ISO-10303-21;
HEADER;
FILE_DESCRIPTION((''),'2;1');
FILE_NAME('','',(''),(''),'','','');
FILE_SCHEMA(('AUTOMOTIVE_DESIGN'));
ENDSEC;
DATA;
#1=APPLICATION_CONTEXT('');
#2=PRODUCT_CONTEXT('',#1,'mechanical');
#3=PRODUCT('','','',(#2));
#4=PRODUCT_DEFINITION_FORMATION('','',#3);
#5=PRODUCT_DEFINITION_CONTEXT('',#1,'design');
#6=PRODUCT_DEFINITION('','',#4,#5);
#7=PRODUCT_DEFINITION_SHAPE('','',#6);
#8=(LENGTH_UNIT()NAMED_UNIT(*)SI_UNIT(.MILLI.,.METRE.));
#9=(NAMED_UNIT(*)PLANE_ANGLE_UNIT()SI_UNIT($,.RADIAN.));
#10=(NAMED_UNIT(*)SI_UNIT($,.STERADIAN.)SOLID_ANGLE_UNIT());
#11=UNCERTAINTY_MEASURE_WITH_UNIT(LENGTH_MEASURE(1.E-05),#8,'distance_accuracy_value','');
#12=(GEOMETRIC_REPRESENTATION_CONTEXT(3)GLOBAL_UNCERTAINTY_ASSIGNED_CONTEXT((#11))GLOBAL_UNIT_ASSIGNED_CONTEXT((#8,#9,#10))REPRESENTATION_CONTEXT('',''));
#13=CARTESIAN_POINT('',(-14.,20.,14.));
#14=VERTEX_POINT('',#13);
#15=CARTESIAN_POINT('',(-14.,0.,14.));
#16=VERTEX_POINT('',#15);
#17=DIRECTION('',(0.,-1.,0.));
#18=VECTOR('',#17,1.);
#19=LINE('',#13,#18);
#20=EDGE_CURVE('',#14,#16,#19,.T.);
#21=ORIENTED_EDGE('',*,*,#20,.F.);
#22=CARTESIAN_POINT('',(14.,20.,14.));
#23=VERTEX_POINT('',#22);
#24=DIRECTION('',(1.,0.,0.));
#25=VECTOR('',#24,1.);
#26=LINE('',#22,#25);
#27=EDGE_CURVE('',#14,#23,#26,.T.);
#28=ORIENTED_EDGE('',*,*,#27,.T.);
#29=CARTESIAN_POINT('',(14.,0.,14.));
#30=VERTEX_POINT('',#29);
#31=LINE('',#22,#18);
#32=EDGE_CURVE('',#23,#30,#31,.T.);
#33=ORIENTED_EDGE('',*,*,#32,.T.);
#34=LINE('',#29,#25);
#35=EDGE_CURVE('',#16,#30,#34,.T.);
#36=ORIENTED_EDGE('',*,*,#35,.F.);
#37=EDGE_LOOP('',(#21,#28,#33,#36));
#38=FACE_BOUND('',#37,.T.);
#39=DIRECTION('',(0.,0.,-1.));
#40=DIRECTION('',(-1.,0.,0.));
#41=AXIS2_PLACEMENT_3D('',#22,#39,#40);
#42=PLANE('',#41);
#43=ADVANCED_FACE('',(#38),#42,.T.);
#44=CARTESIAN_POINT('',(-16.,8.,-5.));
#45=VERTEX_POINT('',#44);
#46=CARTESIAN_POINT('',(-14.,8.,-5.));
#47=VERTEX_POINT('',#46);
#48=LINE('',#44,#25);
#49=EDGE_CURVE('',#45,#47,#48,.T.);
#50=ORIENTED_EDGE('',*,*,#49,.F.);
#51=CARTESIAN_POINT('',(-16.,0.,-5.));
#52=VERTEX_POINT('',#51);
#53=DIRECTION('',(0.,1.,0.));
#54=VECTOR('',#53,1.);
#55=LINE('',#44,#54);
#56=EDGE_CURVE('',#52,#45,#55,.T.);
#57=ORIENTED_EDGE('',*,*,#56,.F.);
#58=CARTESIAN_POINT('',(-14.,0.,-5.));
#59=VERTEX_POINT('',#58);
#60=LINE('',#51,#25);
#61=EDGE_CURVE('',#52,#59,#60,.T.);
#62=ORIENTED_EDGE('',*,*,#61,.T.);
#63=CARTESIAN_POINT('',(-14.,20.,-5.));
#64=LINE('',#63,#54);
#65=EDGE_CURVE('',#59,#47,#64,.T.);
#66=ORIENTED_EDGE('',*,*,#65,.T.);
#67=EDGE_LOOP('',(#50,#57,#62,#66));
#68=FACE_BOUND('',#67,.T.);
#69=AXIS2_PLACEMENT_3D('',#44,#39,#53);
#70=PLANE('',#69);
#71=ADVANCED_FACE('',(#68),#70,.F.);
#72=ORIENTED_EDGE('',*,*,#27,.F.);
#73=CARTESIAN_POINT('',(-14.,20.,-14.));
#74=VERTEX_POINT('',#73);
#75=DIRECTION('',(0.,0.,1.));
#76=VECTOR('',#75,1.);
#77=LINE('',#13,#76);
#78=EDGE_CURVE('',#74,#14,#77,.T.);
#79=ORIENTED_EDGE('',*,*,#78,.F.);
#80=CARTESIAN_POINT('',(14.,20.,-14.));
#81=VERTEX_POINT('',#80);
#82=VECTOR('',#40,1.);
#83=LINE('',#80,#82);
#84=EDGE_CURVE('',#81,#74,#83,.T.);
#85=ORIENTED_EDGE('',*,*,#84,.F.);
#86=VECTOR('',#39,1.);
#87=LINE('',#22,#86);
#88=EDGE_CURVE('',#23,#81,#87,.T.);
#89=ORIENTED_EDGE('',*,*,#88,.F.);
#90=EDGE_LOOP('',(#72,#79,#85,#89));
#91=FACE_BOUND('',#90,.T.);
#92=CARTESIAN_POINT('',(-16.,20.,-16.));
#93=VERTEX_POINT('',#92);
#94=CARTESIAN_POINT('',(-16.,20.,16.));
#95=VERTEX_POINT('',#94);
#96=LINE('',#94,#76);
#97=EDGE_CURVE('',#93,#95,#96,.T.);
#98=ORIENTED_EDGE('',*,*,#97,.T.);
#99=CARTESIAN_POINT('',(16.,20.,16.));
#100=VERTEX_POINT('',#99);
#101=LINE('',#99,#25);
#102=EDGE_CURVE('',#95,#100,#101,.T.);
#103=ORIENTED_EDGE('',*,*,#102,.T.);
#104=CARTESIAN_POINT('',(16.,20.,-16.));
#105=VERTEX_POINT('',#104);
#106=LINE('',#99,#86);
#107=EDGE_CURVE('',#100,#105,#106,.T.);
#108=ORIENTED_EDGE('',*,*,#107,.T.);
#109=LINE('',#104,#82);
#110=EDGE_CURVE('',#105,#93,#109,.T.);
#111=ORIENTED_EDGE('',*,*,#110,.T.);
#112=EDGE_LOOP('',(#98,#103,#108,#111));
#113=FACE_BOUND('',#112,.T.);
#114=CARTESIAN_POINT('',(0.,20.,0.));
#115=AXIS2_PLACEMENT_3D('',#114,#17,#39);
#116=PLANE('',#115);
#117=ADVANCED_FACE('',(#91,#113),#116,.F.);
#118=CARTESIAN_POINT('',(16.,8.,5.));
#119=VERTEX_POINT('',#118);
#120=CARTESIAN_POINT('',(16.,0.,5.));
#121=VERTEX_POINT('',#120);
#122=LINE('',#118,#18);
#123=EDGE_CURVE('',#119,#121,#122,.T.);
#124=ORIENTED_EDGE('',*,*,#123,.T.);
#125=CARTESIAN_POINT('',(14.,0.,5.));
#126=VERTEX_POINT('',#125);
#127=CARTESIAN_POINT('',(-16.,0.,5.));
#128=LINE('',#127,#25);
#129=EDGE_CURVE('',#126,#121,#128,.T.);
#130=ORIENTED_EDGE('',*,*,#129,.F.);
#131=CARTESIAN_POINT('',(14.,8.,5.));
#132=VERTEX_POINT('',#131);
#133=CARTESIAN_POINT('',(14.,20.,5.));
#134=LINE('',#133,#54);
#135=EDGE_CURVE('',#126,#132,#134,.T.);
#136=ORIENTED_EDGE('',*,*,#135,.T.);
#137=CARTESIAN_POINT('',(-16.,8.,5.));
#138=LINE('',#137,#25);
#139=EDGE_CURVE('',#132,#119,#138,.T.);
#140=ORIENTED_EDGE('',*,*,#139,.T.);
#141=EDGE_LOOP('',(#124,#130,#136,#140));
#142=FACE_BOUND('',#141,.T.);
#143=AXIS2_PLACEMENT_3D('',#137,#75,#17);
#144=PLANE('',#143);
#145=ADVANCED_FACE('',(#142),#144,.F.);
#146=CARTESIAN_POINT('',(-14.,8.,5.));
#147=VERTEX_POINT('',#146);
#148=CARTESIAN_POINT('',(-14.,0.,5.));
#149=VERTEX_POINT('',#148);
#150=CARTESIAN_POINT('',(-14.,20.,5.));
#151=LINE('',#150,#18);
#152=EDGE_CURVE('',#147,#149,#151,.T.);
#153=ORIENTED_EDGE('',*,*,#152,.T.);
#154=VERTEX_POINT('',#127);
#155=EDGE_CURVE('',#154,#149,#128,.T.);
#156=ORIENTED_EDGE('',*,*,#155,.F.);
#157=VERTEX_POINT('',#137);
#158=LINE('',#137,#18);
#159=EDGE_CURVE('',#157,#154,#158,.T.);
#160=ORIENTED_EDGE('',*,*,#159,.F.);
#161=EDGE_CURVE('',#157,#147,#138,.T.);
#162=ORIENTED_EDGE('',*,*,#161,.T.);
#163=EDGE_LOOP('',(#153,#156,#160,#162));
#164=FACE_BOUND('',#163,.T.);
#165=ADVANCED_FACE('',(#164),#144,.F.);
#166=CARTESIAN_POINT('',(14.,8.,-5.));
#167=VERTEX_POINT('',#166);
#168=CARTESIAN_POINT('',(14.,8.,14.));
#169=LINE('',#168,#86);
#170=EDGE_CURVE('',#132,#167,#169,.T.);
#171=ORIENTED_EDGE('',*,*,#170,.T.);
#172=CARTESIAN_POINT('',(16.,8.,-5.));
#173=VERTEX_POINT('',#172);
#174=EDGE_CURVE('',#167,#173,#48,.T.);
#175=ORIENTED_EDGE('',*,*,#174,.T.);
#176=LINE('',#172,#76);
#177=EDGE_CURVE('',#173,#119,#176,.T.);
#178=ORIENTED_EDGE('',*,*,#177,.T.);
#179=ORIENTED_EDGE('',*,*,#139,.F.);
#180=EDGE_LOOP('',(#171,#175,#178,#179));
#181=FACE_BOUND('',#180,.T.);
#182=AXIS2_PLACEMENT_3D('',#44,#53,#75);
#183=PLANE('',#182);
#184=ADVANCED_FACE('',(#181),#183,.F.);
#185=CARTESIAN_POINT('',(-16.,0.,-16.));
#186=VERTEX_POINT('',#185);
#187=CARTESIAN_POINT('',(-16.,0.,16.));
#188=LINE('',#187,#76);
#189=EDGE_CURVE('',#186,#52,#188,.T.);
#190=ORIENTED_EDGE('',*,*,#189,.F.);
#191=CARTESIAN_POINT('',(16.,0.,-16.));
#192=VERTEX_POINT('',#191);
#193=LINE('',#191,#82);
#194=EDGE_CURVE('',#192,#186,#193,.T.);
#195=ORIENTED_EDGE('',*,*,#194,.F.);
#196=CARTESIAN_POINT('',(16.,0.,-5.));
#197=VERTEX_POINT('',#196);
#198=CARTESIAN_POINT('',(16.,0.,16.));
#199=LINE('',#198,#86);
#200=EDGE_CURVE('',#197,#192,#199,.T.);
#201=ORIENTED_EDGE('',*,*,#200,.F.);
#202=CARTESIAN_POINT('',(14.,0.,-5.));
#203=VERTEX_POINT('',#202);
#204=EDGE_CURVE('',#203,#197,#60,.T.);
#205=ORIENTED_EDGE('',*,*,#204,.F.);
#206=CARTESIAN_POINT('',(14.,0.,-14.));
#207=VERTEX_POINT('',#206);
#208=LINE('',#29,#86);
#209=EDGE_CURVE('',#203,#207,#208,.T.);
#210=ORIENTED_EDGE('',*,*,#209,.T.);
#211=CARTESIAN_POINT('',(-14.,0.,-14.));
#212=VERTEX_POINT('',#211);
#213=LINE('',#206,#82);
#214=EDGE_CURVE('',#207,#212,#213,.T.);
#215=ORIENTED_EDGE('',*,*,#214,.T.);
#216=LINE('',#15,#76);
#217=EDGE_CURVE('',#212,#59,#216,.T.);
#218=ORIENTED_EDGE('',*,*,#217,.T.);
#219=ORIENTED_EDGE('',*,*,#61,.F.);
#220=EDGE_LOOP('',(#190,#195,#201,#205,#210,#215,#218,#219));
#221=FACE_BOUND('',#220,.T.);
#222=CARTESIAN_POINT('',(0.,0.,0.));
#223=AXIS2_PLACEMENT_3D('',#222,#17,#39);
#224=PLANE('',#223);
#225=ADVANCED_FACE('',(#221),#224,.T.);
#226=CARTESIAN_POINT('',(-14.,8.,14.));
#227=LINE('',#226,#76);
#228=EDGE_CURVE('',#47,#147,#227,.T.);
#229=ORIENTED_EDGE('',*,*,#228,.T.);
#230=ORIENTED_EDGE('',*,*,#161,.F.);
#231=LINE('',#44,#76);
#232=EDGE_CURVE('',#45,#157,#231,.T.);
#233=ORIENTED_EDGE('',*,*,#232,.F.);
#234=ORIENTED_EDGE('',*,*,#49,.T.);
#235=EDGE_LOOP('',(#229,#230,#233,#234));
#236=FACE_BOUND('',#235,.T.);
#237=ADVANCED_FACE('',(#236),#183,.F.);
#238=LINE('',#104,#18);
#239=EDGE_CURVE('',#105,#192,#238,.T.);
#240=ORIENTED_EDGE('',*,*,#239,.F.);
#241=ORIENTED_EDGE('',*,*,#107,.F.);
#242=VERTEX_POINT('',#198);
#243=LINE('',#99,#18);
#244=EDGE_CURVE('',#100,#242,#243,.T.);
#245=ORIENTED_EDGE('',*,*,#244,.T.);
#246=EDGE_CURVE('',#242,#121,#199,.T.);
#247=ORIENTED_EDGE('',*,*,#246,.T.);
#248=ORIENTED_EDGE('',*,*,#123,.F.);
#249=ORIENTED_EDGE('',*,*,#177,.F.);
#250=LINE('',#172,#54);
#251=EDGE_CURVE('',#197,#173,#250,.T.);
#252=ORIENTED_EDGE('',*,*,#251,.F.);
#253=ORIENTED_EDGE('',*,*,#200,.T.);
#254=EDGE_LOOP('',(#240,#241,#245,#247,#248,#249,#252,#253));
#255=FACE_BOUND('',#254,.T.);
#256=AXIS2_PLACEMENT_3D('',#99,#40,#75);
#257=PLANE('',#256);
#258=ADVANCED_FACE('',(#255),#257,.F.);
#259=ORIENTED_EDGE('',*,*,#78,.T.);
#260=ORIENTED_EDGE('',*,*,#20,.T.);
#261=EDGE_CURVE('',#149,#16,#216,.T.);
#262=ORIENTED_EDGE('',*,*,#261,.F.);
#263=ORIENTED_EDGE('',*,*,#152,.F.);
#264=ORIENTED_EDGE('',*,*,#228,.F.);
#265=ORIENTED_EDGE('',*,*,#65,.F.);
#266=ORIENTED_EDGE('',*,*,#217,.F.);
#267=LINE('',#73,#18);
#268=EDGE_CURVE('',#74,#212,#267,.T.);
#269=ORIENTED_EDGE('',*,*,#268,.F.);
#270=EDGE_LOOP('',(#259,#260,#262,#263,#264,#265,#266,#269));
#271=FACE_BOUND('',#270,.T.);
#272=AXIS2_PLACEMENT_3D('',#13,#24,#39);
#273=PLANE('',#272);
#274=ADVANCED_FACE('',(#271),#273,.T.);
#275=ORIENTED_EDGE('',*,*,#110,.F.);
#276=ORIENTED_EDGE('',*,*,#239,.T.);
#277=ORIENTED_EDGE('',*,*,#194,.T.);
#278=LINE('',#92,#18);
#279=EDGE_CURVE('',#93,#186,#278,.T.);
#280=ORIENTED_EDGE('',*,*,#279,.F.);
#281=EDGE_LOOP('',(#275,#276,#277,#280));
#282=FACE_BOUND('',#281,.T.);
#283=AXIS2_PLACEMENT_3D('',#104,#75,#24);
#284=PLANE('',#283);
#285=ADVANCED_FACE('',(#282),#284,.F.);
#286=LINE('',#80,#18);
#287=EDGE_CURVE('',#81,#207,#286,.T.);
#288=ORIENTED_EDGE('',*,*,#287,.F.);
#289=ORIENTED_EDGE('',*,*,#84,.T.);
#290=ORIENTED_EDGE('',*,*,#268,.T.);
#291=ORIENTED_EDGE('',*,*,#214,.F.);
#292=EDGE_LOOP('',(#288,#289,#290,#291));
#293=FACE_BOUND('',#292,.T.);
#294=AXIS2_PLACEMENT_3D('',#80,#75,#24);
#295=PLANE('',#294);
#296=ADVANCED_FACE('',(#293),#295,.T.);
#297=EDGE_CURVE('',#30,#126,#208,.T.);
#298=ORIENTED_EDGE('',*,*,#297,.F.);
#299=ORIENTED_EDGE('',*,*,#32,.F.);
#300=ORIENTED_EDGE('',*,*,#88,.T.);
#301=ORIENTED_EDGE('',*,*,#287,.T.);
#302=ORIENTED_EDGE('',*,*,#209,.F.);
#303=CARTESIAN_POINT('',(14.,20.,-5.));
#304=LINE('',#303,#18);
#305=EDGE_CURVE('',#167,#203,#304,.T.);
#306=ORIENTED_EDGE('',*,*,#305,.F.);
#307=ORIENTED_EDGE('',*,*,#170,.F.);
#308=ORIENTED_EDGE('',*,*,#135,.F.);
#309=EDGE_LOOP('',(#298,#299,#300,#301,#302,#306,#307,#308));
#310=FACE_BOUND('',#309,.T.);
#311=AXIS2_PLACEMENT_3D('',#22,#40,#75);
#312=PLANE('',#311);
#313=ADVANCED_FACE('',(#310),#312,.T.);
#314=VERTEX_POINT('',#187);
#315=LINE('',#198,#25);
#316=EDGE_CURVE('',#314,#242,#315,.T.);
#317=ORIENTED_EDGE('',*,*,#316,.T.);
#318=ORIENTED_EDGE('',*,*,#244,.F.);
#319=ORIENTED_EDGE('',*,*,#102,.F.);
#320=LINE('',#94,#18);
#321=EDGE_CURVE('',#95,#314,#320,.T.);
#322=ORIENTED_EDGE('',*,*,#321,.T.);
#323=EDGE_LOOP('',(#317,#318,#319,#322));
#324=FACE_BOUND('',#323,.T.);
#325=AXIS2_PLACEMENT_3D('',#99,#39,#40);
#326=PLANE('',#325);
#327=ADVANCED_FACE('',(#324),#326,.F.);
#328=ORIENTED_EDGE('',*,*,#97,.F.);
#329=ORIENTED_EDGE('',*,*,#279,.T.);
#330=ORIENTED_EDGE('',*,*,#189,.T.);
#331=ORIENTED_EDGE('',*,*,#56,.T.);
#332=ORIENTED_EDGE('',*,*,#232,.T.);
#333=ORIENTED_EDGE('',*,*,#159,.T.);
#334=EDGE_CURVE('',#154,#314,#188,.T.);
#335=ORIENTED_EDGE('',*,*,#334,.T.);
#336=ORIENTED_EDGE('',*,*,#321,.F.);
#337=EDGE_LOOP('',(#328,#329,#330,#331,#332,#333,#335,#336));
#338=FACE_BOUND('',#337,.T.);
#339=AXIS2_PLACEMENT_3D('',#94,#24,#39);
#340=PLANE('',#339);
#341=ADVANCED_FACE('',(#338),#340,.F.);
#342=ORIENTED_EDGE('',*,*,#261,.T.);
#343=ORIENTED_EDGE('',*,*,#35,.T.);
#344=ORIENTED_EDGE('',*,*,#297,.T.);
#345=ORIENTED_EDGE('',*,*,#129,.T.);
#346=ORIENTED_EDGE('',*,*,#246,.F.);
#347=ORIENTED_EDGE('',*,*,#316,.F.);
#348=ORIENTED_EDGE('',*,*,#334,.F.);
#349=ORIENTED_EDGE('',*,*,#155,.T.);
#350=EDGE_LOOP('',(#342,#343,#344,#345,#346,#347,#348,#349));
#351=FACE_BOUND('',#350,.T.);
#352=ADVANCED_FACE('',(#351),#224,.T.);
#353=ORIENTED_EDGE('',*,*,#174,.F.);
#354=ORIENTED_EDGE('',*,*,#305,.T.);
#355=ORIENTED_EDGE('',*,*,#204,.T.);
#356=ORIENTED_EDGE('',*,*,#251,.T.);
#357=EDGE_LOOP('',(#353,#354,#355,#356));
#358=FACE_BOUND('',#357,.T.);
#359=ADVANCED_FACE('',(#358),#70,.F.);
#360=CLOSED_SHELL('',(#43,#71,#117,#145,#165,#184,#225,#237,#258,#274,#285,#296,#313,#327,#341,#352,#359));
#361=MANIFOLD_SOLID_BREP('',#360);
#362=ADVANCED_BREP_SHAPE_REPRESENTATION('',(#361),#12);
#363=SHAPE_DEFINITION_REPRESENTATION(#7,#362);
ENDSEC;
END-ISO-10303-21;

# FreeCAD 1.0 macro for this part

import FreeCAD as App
import Part
import Sketcher
from FreeCAD import Vector


def add_polygon(sketch, points):
    """Adds a closed chain of lines whose ends are joined by coincident constraints."""
    first, n = sketch.GeometryCount, len(points)
    for a, b in zip(points, points[1:] + points[:1]):
        sketch.addGeometry(Part.LineSegment(App.Vector(*a, 0), App.Vector(*b, 0)), False)
    for i in range(n):
        sketch.addConstraint(Sketcher.Constraint("Coincident", first + i, 2, first + (i + 1) % n, 1))

doc = App.newDocument("Part")
params = doc.addObject("Spreadsheet::Sheet", "Params")
for row, (alias, value) in enumerate([
    ("sketch1_width", "32 mm"),
    ("sketch1_width2", "28 mm"),
    ("pad1_length", "20 mm"),
    ("sketch2_width", "8 mm"),
    ("sketch2_height", "10 mm"),
], start=1):
    params.set(f"A{row}", alias)
    params.set(f"B{row}", "=" + value)
    params.setAlias(f"B{row}", alias)

body = doc.addObject("PartDesign::Body", "Body")

sketch1 = doc.addObject("Sketcher::SketchObject", "Sketch")
body.addObject(sketch1)
sketch1.AttachmentSupport = (doc.XZ_Plane, [""])
sketch1.MapMode = "FlatFace"
add_polygon(sketch1, [(-16, -16), (-16, 16), (16, 16), (16, -16)])
add_polygon(sketch1, [(14, 14), (-14, 14), (-14, -14), (14, -14)])
sketch1.addConstraint([
    Sketcher.Constraint("Vertical", 0),
    Sketcher.Constraint("Horizontal", 1),
    Sketcher.Constraint("Vertical", 2),
    Sketcher.Constraint("Horizontal", 3),
    Sketcher.Constraint("Horizontal", 4),
    Sketcher.Constraint("Vertical", 5),
    Sketcher.Constraint("Horizontal", 6),
    Sketcher.Constraint("Vertical", 7),
    Sketcher.Constraint("Symmetric", 0, 2, 2, 2, -1, 1),
    Sketcher.Constraint("Symmetric", 4, 2, 6, 2, -1, 1),
    Sketcher.Constraint("Equal", 3, 0),
    Sketcher.Constraint("Equal", 6, 5),
    Sketcher.Constraint("DistanceX", 1, 1, 1, 2, 32.0),
    Sketcher.Constraint("DistanceX", 4, 2, 4, 1, 28.0),
])
sketch1.setExpression("Constraints[20]", "Params.sketch1_width")
sketch1.setExpression("Constraints[21]", "Params.sketch1_width2")
pad1 = doc.addObject("PartDesign::Pad", "Pad")
body.addObject(pad1)
pad1.Profile = sketch1
pad1.setExpression("Length", "Params.pad1_length")
pad1.Reversed = True

sketch2 = doc.addObject("Sketcher::SketchObject", "Sketch001")
body.addObject(sketch2)
sketch2.AttachmentSupport = (doc.YZ_Plane, [""])
sketch2.MapMode = "FlatFace"
sketch2.AttachmentOffset = App.Placement(Vector(0, 0, 16), App.Rotation())
add_polygon(sketch2, [(8, 5), (0, 5), (0, -5), (8, -5)])
sketch2.addConstraint([
    Sketcher.Constraint("Horizontal", 0),
    Sketcher.Constraint("Vertical", 1),
    Sketcher.Constraint("Horizontal", 2),
    Sketcher.Constraint("Vertical", 3),
    Sketcher.Constraint("Symmetric", 0, 2, 1, 2, -1, 1),
    Sketcher.Constraint("DistanceX", 0, 2, 0, 1, 8.0),
    Sketcher.Constraint("DistanceY", 1, 2, 1, 1, 10.0),
])
sketch2.setExpression("Constraints[9]", "Params.sketch2_width")
sketch2.setExpression("Constraints[10]", "Params.sketch2_height")
pocket1 = doc.addObject("PartDesign::Pocket", "Pocket")
body.addObject(pocket1)
pocket1.Profile = sketch2
pocket1.Type = "ThroughAll"

doc.recompute()
